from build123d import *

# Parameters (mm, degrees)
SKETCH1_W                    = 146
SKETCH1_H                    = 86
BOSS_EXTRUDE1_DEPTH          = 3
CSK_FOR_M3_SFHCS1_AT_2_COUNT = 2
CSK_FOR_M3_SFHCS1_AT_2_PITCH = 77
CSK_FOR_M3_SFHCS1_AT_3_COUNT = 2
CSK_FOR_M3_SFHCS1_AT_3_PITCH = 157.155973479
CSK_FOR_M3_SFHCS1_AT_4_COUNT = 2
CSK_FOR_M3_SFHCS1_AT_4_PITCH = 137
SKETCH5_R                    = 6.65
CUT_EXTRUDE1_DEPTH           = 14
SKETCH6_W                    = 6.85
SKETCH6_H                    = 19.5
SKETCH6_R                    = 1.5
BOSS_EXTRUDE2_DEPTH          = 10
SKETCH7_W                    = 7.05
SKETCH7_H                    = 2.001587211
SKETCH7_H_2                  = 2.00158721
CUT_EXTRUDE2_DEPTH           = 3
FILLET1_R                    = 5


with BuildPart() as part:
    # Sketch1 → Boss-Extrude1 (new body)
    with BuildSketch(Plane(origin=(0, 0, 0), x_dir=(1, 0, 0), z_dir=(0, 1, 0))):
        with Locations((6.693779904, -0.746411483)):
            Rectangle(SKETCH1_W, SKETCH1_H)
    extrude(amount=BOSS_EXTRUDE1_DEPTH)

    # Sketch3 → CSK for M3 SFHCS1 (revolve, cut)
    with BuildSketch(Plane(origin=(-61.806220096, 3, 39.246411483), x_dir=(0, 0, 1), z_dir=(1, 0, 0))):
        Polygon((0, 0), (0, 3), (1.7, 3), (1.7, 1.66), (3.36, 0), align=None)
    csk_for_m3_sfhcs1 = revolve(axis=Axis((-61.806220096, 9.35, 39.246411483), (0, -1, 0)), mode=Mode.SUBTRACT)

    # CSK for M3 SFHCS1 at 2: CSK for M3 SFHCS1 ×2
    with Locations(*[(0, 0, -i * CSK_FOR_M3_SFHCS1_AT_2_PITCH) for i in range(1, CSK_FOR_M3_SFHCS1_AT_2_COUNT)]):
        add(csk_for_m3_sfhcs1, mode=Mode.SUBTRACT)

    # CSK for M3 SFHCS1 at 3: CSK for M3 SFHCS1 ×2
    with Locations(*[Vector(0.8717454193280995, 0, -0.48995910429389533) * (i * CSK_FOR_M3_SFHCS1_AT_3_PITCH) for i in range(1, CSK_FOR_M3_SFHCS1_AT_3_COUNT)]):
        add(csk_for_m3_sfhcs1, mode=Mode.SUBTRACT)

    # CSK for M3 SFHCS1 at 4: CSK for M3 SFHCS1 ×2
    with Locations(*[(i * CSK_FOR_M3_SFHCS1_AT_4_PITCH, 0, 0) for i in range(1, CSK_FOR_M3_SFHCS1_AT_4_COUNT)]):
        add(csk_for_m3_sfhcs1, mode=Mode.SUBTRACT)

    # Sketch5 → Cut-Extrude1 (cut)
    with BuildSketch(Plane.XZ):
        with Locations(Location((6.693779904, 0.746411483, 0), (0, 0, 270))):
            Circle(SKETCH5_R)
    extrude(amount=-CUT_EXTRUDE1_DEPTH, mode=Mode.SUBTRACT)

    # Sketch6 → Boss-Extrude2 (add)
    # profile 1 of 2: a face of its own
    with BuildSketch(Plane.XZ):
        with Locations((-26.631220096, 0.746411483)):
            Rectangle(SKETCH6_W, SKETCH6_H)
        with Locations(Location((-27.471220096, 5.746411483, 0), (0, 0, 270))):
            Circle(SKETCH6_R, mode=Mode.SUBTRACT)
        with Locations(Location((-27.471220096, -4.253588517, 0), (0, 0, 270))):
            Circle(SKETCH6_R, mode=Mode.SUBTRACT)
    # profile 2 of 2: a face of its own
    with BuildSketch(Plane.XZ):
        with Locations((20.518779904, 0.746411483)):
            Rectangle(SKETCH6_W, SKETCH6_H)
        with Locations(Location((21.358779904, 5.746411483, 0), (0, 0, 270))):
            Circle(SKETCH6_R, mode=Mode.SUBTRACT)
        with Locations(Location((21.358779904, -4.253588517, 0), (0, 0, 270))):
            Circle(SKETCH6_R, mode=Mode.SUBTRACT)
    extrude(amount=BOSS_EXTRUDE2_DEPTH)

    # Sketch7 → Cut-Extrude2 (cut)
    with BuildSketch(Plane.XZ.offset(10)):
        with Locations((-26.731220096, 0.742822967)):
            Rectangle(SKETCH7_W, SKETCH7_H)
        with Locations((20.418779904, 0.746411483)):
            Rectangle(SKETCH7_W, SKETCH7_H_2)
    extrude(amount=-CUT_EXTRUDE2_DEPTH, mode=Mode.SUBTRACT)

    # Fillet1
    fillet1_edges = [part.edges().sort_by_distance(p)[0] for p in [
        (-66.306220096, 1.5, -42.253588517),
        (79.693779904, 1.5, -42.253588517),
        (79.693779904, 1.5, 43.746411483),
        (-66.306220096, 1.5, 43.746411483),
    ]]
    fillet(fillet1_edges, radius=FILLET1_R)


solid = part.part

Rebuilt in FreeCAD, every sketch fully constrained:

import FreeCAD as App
import Part
import Sketcher
Q = App.Units.Quantity


def edges_at(feature, points):
    """Names of the edges that pass closest to the given points."""
    edges = feature.Shape.Edges
    near = lambda p: min(range(len(edges)), key=lambda i: edges[i].distToShape(Part.Vertex(*p))[0])
    return sorted({f"Edge{near(p) + 1}" for p in points})


def add_polygon(sketch, points):
    """Adds a closed chain of lines whose ends are joined by coincident constraints."""
    first, n = sketch.GeometryCount, len(points)
    for a, b in zip(points, points[1:] + points[:1]):
        sketch.addGeometry(Part.LineSegment(App.Vector(*a, 0), App.Vector(*b, 0)), False)
    for i in range(n):
        sketch.addConstraint(Sketcher.Constraint("Coincident", first + i, 2, first + (i + 1) % n, 1))

doc = App.newDocument("Part")
params = doc.addObject("Spreadsheet::Sheet", "Params")
for row, (alias, value) in enumerate([
    ("sketch1_width", "146 mm"),
    ("sketch1_height", "86 mm"),
    ("pad1_length", "3 mm"),
    ("sketch2_width", "3 mm"),
    ("sketch2_height", "1.7 mm"),
    ("sketch2_width2", "1.34 mm"),
    ("groove_angle", "360 deg"),
    ("linearpattern_pitch", "77 mm"),
    ("linearpattern2_pitch", "157.155973 mm"),
    ("linearpattern3_pitch", "137 mm"),
    ("sketch3_diameter", "13.3 mm"),
    ("pocket1_length", "14 mm"),
    ("sketch4_diameter", "3 mm"),
    ("sketch4_height", "19.5 mm"),
    ("sketch4_width", "6.85 mm"),
    ("pad2_length", "10 mm"),
    ("sketch5_width", "7.05 mm"),
    ("pocket2_length", "3 mm"),
    ("fillet_radius", "5 mm"),
], start=1):
    params.set(f"A{row}", alias)
    params.set(f"B{row}", "=" + value)
    params.setAlias(f"B{row}", alias)

body = doc.addObject("PartDesign::Body", "Body")

# Sketch on XZ plane
sketch1 = body.newObject("Sketcher::SketchObject", "Sketch")
sketch1.AttachmentSupport = (doc.getObject("XZ_Plane"), [""])
sketch1.MapMode = "FlatFace"
add_polygon(sketch1, [(-66, -42), (-66, 44), (80, 44), (80, -42)])  # lines 0-3
sketch1.addConstraint([
    Sketcher.Constraint("Vertical", 0),
    Sketcher.Constraint("Horizontal", 1),
    Sketcher.Constraint("Vertical", 2),
    Sketcher.Constraint("Horizontal", 3),
    Sketcher.Constraint("DistanceX", 1, 1, 1, 2, 146.0),
    Sketcher.Constraint("DistanceY", 0, 1, 0, 2, 86.0),
    Sketcher.Constraint("DistanceX", 0, 2, -1, 1, 66.30622),
    Sketcher.Constraint("DistanceY", -1, 1, 0, 2, 43.746411),
])
sketch1.setExpression("Constraints[8]", "Params.sketch1_width")
sketch1.setExpression("Constraints[9]", "Params.sketch1_height")
pad1 = body.newObject("PartDesign::Pad", "Pad")
pad1.Profile = sketch1
pad1.setExpression("Length", "Params.pad1_length")
pad1.Reversed = True

# Sketch on YZ plane
sketch2 = body.newObject("Sketcher::SketchObject", "Sketch001")
sketch2.AttachmentSupport = (doc.getObject("YZ_Plane"), [""])
sketch2.MapMode = "FlatFace"
sketch2.AttachmentOffset = App.Placement(App.Vector(0, 0, -61.80622), App.Rotation())
add_polygon(sketch2, [(0, 39.2), (3, 39.2), (3, 42.6), (1.3, 40.9), (0, 40.9)])  # lines 0-4
sketch2.addGeometry(Part.LineSegment(App.Vector(3, 39.2, 0), App.Vector(0, 39.2, 0)), True)  # axis
sketch2.addConstraint([
    Sketcher.Constraint("Horizontal", 0),
    Sketcher.Constraint("Vertical", 1),
    Sketcher.Constraint("Horizontal", 3),
    Sketcher.Constraint("Vertical", 4),
    Sketcher.Constraint("Horizontal", 5),
    Sketcher.Constraint("Coincident", 5, 1, 0, 2),
    Sketcher.Constraint("PointOnObject", 3, 2, -2),
    Sketcher.Constraint("PointOnObject", 5, 2, -2),
    Sketcher.Constraint("DistanceX", 0, 1, 0, 2, 3.0),
    Sketcher.Constraint("Angle", 2, Q("-135 deg")),
    Sketcher.Constraint("DistanceY", 4, 2, 4, 1, 1.7),
    Sketcher.Constraint("DistanceX", 3, 2, 3, 1, 1.34),
    Sketcher.Constraint("DistanceY", -1, 1, 0, 2, 39.246411),
])
sketch2.setExpression("Constraints[13]", "Params.sketch2_width")
sketch2.setExpression("Constraints[15]", "Params.sketch2_height")
sketch2.setExpression("Constraints[16]", "Params.sketch2_width2")
groove = body.newObject("PartDesign::Groove", "Groove")
groove.Profile = sketch2
groove.ReferenceAxis = (sketch2, ["Axis0"])
groove.setExpression("Angle", "Params.groove_angle")
doc.recompute()

linearpattern = body.newObject("PartDesign::LinearPattern", "LinearPattern")
linearpattern.Originals = [groove]
linearpattern.Direction = (doc.getObject("Z_Axis"), [""])
linearpattern.Mode = "offset"
linearpattern.setExpression("Offset", "Params.linearpattern_pitch")
linearpattern.Occurrences = 2
linearpattern.Reversed = True
body.Tip = linearpattern
doc.recompute()

datumline = body.newObject("PartDesign::Line", "DatumLine")
datumline.Placement = App.Placement(App.Vector(0, 0, 0), App.Rotation(App.Vector(0, 0, 1), App.Vector(0.871745419, 0, -0.489959104)))
linearpattern2 = body.newObject("PartDesign::LinearPattern", "LinearPattern001")
linearpattern2.Originals = [groove]
linearpattern2.Direction = (datumline, [""])
linearpattern2.Mode = "offset"
linearpattern2.setExpression("Offset", "Params.linearpattern2_pitch")
linearpattern2.Occurrences = 2
body.Tip = linearpattern2
doc.recompute()

linearpattern3 = body.newObject("PartDesign::LinearPattern", "LinearPattern002")
linearpattern3.Originals = [groove]
linearpattern3.Direction = (doc.getObject("X_Axis"), [""])
linearpattern3.Mode = "offset"
linearpattern3.setExpression("Offset", "Params.linearpattern3_pitch")
linearpattern3.Occurrences = 2
body.Tip = linearpattern3

# Sketch on XZ plane
sketch3 = body.newObject("Sketcher::SketchObject", "Sketch002")
sketch3.AttachmentSupport = (doc.getObject("XZ_Plane"), [""])
sketch3.MapMode = "FlatFace"
sketch3.addGeometry(Part.Circle(App.Vector(7, 1, 0), App.Vector(0, 0, 1), 7), False)
sketch3.addConstraint([
    Sketcher.Constraint("Diameter", 0, 13.3),
    Sketcher.Constraint("DistanceX", -1, 1, 0, 3, 6.69378),
    Sketcher.Constraint("DistanceY", -1, 1, 0, 3, 0.746411),
])
sketch3.setExpression("Constraints[0]", "Params.sketch3_diameter")
pocket1 = body.newObject("PartDesign::Pocket", "Pocket")
pocket1.Profile = sketch3
pocket1.setExpression("Length", "Params.pocket1_length")

# Sketch on XZ plane
sketch4 = body.newObject("Sketcher::SketchObject", "Sketch003")
sketch4.AttachmentSupport = (doc.getObject("XZ_Plane"), [""])
sketch4.MapMode = "FlatFace"
add_polygon(sketch4, [(-30.1, 10.5), (-30.1, -9), (-23.2, -9), (-23.2, 10.5)])  # lines 0-3
sketch4.addGeometry(Part.Circle(App.Vector(-27.5, -4.3, 0), App.Vector(0, 0, 1), 1.5), False)  # 4
sketch4.addGeometry(Part.Circle(App.Vector(-27.5, 5.7, 0), App.Vector(0, 0, 1), 1.5), False)  # 5
add_polygon(sketch4, [(17.1, 10.5), (17.1, -9), (23.9, -9), (23.9, 10.5)])  # lines 6-9
sketch4.addGeometry(Part.Circle(App.Vector(21.4, -4.3, 0), App.Vector(0, 0, 1), 1.5), False)  # 10
sketch4.addGeometry(Part.Circle(App.Vector(21.4, 5.7, 0), App.Vector(0, 0, 1), 1.5), False)  # 11
sketch4.addConstraint([
    Sketcher.Constraint("Vertical", 0),
    Sketcher.Constraint("Horizontal", 1),
    Sketcher.Constraint("Vertical", 2),
    Sketcher.Constraint("Horizontal", 3),
    Sketcher.Constraint("Vertical", 6),
    Sketcher.Constraint("Horizontal", 7),
    Sketcher.Constraint("Vertical", 8),
    Sketcher.Constraint("Horizontal", 9),
    Sketcher.Constraint("Equal", 4, 5),
    Sketcher.Constraint("Equal", 5, 10),
    Sketcher.Constraint("Equal", 10, 11),
    Sketcher.Constraint("Horizontal", 4, 3, 10, 3),
    Sketcher.Constraint("Horizontal", 5, 3, 11, 3),
    Sketcher.Constraint("Horizontal", 1, 2, 6, 2),
    Sketcher.Constraint("Horizontal", 3, 2, 8, 2),
    Sketcher.Constraint("Vertical", 4, 3, 5, 3),
    Sketcher.Constraint("Vertical", 10, 3, 11, 3),
    Sketcher.Constraint("Equal", 3, 7),
    Sketcher.Constraint("Diameter", 4, 3.0),
    Sketcher.Constraint("DistanceY", 0, 2, 0, 1, 19.5),
    Sketcher.Constraint("DistanceY", 4, 3, 5, 3, 10.0),
    Sketcher.Constraint("DistanceX", 1, 1, 1, 2, 6.85),
    Sketcher.Constraint("DistanceX", 1, 2, 6, 2, 40.3),
    Sketcher.Constraint("DistanceX", 4, 3, 10, 3, 48.83),
    Sketcher.Constraint("DistanceY", 0, 2, 4, 3, 4.75),
    Sketcher.Constraint("DistanceX", 0, 2, 4, 3, 2.585),
    Sketcher.Constraint("DistanceX", 4, 3, -1, 1, 27.47122),
    Sketcher.Constraint("DistanceY", 4, 3, -1, 1, 4.253589),
])
sketch4.setExpression("Constraints[26]", "Params.sketch4_diameter")
sketch4.setExpression("Constraints[27]", "Params.sketch4_height")
sketch4.setExpression("Constraints[29]", "Params.sketch4_width")
pad2 = body.newObject("PartDesign::Pad", "Pad001")
pad2.Profile = sketch4
pad2.setExpression("Length", "Params.pad2_length")

# Sketch on XZ plane
sketch5 = body.newObject("Sketcher::SketchObject", "Sketch004")
sketch5.AttachmentSupport = (doc.getObject("XZ_Plane"), [""])
sketch5.MapMode = "FlatFace"
sketch5.AttachmentOffset = App.Placement(App.Vector(0, 0, 10), App.Rotation())
add_polygon(sketch5, [(-30.3, 1.7), (-30.3, -0.3), (-23.2, -0.3), (-23.2, 1.7)])  # lines 0-3
add_polygon(sketch5, [(16.9, 1.7), (16.9, -0.3), (23.9, -0.3), (23.9, 1.7)])  # lines 4-7
sketch5.addConstraint([
    Sketcher.Constraint("Vertical", 0),
    Sketcher.Constraint("Horizontal", 1),
    Sketcher.Constraint("Vertical", 2),
    Sketcher.Constraint("Horizontal", 3),
    Sketcher.Constraint("Vertical", 4),
    Sketcher.Constraint("Horizontal", 5),
    Sketcher.Constraint("Vertical", 6),
    Sketcher.Constraint("Horizontal", 7),
    Sketcher.Constraint("Equal", 3, 5),
    Sketcher.Constraint("Equal", 2, 4),
    Sketcher.Constraint("DistanceX", 1, 1, 1, 2, 7.05),
    Sketcher.Constraint("DistanceX", 1, 2, 4, 2, 40.1),
    Sketcher.Constraint("DistanceY", 4, 2, 2, 2, 1.997999),
    Sketcher.Constraint("DistanceY", 0, 2, 0, 1, 2.001587),
    Sketcher.Constraint("DistanceX", 0, 2, -1, 1, 30.25622),
    Sketcher.Constraint("DistanceY", 0, 2, -1, 1, 0.257971),
])
sketch5.setExpression("Constraints[18]", "Params.sketch5_width")
pocket2 = body.newObject("PartDesign::Pocket", "Pocket001")
pocket2.Profile = sketch5
pocket2.setExpression("Length", "Params.pocket2_length")
doc.recompute()

fillet = body.newObject("PartDesign::Fillet", "Fillet")
fillet.Base = (pocket2, edges_at(pocket2, [
    (-66.306, 1.5, -42.254),
    (79.694, 1.5, -42.254),
    (79.694, 1.5, 43.746),
    (-66.306, 1.5, 43.746),
]))
fillet.setExpression("Radius", "Params.fillet_radius")

doc.recompute()
